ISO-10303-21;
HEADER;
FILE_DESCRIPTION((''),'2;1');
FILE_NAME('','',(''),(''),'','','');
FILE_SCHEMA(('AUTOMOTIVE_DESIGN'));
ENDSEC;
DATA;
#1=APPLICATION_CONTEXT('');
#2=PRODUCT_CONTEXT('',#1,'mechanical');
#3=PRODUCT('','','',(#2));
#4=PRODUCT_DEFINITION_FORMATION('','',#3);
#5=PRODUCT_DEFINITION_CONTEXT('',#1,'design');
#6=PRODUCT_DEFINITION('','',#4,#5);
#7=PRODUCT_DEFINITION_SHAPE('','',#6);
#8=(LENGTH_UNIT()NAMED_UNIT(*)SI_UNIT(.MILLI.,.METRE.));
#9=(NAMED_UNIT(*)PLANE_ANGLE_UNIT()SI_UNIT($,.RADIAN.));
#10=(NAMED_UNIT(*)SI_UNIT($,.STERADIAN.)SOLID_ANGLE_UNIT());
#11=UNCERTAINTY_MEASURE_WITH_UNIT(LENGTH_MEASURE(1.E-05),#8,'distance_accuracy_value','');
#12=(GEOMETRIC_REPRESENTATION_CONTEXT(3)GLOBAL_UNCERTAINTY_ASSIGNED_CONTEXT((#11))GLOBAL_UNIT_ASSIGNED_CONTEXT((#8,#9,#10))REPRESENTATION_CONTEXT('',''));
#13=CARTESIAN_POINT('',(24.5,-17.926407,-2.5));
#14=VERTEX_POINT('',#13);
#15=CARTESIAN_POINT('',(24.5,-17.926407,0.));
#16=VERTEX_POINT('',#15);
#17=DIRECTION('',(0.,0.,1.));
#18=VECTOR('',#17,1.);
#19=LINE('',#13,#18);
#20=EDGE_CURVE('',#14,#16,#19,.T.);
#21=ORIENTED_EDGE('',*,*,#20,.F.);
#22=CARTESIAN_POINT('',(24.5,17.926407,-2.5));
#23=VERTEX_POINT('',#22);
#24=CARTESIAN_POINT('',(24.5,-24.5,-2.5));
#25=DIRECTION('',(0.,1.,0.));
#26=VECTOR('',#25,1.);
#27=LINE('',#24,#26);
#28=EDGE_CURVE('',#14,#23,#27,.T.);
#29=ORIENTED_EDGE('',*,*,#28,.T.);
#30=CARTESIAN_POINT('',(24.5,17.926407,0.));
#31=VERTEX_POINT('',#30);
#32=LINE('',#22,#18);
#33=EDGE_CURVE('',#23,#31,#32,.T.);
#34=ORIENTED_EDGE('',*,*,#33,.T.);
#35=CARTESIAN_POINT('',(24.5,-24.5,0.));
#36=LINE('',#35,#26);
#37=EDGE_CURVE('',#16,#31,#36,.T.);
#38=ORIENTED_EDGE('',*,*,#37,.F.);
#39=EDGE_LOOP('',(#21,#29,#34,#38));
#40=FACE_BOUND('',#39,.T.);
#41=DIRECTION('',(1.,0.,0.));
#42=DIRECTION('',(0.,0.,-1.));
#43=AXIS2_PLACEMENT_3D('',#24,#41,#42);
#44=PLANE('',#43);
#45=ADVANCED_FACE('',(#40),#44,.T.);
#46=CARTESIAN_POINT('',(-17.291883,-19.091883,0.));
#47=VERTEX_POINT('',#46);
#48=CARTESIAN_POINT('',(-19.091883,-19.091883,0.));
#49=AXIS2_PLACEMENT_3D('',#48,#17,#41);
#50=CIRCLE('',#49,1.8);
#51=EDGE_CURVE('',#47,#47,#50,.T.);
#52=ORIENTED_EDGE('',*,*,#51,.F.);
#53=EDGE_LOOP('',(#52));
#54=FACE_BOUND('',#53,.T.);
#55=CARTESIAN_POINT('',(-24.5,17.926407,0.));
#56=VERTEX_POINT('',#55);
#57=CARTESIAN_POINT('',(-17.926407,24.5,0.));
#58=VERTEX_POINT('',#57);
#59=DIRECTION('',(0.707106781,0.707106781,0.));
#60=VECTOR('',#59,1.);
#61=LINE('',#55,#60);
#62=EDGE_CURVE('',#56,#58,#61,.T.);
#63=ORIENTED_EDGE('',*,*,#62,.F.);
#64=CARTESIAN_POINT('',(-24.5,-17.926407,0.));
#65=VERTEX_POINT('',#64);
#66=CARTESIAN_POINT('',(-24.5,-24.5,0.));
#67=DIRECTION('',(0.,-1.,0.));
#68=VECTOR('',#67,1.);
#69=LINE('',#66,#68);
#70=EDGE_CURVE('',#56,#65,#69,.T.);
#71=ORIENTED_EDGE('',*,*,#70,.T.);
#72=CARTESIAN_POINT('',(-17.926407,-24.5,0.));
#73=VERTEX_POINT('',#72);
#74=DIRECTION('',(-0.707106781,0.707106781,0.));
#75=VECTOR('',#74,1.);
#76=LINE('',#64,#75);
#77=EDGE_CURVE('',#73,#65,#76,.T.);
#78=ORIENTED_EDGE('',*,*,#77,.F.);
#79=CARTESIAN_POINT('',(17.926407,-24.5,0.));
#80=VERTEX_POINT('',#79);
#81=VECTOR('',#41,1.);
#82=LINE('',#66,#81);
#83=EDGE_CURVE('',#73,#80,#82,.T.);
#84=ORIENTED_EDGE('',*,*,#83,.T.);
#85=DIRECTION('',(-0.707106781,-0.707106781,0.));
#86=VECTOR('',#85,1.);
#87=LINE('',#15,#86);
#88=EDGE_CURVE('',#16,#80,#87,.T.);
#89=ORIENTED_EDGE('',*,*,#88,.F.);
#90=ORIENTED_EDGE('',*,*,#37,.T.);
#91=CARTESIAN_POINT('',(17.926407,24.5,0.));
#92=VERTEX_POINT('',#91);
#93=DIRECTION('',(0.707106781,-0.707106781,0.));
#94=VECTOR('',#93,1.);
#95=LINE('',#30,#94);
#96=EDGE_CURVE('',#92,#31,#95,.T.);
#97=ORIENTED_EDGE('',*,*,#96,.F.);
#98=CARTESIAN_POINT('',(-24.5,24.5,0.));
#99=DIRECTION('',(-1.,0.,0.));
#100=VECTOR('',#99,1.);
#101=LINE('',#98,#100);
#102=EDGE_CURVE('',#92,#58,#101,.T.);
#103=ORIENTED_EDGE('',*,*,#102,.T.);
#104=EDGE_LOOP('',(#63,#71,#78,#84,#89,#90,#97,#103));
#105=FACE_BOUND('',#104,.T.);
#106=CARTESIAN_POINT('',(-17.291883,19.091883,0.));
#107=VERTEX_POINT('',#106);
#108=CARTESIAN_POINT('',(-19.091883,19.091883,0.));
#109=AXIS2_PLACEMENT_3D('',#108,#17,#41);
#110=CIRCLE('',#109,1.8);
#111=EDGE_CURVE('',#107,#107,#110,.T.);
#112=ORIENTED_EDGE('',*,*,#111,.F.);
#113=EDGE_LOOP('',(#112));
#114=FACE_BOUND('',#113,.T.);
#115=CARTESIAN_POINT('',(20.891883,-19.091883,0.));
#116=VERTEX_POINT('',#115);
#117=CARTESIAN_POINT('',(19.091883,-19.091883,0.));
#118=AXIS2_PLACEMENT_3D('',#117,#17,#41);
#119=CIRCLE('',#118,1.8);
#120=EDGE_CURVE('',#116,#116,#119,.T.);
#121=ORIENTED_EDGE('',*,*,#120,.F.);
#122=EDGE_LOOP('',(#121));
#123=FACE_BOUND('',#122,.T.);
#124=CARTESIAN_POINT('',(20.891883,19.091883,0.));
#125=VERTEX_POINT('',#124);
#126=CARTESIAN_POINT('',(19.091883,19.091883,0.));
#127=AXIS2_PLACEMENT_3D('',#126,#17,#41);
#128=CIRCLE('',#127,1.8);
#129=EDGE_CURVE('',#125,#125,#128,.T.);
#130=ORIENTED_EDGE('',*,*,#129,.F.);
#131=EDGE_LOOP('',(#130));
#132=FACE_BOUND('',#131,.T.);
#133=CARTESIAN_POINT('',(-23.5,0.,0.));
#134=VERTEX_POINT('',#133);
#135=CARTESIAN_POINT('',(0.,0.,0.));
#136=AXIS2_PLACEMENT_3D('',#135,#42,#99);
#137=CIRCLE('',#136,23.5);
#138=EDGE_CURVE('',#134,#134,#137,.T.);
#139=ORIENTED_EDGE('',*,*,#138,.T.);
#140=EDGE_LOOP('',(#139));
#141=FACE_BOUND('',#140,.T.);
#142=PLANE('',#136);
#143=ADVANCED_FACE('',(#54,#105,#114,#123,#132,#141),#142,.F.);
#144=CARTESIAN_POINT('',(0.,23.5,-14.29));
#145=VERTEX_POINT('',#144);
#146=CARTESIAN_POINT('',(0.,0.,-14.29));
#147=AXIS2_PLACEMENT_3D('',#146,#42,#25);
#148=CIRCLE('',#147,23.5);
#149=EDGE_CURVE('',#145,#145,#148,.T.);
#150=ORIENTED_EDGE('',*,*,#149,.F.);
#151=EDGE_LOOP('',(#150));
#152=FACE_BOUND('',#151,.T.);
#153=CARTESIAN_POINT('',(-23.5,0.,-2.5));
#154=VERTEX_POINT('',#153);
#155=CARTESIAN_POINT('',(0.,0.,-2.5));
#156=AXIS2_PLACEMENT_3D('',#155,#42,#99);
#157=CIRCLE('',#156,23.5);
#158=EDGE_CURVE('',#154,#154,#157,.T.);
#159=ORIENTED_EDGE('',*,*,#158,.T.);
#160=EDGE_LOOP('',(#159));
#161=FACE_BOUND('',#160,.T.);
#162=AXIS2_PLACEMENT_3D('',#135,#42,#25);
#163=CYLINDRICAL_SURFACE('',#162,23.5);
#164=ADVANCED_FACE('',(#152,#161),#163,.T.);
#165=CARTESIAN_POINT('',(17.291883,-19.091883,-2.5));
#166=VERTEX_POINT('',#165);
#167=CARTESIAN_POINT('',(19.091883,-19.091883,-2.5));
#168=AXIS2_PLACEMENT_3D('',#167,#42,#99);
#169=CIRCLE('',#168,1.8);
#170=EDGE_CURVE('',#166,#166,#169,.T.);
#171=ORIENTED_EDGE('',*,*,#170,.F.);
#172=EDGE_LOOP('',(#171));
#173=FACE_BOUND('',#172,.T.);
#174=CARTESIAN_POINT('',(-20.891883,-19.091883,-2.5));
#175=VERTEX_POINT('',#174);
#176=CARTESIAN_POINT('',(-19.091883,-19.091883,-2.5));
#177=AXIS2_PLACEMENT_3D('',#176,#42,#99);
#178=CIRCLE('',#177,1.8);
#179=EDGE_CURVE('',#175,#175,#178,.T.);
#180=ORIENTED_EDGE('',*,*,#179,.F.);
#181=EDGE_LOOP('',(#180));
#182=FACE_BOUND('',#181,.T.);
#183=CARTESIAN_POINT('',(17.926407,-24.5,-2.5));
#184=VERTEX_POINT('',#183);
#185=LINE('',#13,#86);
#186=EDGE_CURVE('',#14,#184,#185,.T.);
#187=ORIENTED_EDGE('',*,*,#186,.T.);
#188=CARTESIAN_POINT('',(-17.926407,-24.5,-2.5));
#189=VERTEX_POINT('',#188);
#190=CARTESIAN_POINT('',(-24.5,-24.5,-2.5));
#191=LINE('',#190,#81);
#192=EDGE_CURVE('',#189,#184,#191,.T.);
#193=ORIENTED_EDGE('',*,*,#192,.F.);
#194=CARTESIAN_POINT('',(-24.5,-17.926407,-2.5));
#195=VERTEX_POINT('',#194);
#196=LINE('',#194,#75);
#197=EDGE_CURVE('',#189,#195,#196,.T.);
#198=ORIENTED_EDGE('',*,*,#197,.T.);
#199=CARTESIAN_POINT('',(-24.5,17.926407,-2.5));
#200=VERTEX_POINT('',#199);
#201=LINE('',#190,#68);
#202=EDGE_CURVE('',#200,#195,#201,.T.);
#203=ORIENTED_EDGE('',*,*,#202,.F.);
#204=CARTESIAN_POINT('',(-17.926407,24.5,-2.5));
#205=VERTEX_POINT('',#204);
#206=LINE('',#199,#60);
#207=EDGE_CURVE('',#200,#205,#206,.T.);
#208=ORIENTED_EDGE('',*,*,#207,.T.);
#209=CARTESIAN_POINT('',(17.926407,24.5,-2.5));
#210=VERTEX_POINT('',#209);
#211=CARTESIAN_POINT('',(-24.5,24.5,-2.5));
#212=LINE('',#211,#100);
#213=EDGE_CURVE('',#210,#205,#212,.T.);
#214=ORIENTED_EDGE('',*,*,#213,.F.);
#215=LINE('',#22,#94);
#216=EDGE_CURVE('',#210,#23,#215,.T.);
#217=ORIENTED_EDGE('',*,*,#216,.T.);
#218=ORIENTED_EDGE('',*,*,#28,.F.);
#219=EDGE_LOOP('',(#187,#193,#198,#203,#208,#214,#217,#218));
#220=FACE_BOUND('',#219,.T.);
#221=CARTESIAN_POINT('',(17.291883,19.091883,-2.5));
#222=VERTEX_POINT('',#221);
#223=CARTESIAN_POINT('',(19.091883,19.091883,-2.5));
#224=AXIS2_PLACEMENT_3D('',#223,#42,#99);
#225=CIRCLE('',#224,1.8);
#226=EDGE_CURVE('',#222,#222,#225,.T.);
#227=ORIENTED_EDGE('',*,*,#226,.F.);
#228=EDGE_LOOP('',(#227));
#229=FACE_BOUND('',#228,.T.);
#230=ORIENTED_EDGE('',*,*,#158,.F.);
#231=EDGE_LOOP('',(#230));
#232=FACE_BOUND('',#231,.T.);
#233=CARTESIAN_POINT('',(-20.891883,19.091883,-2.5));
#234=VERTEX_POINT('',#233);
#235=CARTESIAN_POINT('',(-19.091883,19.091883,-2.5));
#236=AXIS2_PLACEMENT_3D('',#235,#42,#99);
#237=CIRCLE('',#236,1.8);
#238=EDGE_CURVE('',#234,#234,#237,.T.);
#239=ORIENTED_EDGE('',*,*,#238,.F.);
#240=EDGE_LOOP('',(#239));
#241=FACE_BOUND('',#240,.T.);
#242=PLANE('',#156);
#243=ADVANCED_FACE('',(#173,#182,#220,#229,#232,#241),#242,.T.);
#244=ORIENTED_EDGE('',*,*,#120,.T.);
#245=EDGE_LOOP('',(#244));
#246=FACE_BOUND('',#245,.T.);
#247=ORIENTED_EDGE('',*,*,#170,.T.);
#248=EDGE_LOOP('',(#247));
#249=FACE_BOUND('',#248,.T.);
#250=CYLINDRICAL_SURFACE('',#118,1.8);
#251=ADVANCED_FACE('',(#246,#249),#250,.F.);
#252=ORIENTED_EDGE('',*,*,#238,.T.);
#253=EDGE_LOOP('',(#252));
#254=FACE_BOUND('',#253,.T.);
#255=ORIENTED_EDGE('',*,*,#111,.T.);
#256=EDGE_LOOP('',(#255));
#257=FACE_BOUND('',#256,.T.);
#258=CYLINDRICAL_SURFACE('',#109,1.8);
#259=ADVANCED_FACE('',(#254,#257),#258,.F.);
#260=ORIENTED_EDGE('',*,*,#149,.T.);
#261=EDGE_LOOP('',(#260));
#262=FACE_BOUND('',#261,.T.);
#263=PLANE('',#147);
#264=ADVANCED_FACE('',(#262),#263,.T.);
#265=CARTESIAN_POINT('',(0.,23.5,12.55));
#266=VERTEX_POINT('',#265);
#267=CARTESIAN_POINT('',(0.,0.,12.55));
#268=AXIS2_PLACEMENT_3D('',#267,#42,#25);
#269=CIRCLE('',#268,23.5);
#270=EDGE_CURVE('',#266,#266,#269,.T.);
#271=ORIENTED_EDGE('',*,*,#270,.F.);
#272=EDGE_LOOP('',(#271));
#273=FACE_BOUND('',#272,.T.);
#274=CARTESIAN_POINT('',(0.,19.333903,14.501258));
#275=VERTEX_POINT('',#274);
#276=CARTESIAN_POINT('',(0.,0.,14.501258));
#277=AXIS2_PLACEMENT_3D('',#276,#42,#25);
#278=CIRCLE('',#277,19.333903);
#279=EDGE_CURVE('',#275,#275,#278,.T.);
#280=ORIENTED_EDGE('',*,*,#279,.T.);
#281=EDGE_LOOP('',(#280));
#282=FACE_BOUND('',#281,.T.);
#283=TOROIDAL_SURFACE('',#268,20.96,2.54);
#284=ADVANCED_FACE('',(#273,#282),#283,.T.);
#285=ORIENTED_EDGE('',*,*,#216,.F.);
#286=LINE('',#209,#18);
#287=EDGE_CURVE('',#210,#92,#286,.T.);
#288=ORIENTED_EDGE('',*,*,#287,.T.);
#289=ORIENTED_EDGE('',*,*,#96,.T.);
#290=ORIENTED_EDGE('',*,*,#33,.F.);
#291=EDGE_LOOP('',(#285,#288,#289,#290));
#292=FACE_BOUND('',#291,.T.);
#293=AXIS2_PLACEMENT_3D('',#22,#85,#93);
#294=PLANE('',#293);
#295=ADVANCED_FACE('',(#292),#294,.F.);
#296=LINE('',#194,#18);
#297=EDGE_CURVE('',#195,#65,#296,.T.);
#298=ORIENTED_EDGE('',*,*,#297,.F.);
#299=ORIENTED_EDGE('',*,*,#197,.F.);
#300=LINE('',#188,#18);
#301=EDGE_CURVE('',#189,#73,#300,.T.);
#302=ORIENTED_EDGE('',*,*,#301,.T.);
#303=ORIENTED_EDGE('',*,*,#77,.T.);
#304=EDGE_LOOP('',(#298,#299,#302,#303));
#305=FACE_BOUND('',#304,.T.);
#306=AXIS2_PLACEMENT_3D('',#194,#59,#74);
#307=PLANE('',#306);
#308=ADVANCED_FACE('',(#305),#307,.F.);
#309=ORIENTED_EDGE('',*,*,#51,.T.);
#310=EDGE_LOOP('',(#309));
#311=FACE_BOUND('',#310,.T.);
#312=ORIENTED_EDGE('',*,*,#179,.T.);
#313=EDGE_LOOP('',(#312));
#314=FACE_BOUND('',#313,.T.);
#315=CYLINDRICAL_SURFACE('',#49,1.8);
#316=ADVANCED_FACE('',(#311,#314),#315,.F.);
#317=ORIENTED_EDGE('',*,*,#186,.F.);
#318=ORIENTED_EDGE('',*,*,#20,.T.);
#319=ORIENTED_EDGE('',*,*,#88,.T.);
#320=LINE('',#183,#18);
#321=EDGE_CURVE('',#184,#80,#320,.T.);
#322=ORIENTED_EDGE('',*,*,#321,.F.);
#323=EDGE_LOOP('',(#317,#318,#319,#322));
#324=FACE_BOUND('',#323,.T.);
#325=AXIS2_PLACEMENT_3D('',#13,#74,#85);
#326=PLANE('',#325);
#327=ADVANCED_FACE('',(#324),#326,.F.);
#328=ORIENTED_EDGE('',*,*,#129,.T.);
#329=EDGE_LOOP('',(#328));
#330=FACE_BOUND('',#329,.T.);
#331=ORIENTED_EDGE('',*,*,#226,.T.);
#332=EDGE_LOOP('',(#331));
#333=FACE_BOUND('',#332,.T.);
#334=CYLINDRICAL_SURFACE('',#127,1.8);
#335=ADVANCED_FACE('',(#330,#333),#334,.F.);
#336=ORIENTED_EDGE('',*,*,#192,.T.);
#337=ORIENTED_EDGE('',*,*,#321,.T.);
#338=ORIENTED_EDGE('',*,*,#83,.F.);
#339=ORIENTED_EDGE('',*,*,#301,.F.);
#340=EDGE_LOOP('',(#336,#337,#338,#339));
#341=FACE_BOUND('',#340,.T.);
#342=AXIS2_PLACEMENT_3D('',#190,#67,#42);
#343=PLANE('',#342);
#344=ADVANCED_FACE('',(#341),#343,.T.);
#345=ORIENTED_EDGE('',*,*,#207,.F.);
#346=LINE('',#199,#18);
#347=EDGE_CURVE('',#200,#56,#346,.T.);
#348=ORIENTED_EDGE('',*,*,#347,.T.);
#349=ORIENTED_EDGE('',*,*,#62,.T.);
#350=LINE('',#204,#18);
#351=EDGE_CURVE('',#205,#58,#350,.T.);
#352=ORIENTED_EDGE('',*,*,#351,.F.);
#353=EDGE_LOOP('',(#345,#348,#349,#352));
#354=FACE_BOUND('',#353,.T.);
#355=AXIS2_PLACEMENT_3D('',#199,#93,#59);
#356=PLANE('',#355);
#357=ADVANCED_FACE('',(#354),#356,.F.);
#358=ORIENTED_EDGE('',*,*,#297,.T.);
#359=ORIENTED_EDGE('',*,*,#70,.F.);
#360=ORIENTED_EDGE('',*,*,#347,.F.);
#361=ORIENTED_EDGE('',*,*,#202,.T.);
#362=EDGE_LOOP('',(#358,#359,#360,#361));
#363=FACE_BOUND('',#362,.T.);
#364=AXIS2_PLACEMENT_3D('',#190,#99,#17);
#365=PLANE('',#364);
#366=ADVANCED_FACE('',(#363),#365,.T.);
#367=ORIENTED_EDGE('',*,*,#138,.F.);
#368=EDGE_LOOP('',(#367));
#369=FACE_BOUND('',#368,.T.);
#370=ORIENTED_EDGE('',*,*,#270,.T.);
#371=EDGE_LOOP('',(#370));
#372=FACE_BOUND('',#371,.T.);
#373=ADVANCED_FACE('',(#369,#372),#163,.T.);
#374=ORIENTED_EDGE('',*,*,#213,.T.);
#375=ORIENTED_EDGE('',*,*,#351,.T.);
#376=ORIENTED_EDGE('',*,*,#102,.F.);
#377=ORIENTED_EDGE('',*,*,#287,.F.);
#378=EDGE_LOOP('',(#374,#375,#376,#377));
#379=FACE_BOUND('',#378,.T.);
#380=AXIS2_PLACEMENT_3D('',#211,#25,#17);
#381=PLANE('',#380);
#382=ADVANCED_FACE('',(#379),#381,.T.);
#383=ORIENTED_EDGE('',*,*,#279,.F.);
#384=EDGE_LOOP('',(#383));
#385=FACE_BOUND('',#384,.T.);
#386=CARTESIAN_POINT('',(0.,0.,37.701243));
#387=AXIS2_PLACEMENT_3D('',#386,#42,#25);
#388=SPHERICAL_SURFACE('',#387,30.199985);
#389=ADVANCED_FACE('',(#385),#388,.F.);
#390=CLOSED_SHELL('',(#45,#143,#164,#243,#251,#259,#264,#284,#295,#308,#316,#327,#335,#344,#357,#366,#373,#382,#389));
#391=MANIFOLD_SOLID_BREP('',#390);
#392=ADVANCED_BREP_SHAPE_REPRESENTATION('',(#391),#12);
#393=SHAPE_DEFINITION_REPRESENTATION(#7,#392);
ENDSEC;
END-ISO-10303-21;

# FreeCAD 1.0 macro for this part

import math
import FreeCAD as App
import Part
import Sketcher

V = App.Vector
Q = App.Units.Quantity

doc = App.newDocument("Part")
params = doc.addObject("Spreadsheet::Sheet", "Params")
for row, (alias, value) in enumerate([
    ("sketch1_width", "49 mm"),
    ("pad1_length", "2.5 mm"),
    ("sketch2_radius", "2.54 mm"),
    ("sketch2_width", "23.5 mm"),
    ("sketch2_height", "26.84 mm"),
    ("revolution_angle", "360 deg"),
    ("pocket1_length", "2.5 mm"),
    ("sketch4_diameter", "3.6 mm"),
    ("hole_diameter", "3.6 mm"),
], start=1):
    params.set(f"A{row}", alias)
    params.set(f"B{row}", "=" + value)
    params.setAlias(f"B{row}", alias)

body = doc.addObject("PartDesign::Body", "Body")

# Sketch on XY plane
sketch1 = body.newObject("Sketcher::SketchObject", "Sketch")
sketch1.AttachmentSupport = (doc.getObject("XY_Plane"), [""])
sketch1.MapMode = "FlatFace"
sketch1.addGeometry([
    Part.LineSegment(V(-24, 24, 0), V(-24, -24, 0)),
    Part.LineSegment(V(-24, -24, 0), V(24, -24, 0)),
    Part.LineSegment(V(24, -24, 0), V(24, 24, 0)),
    Part.LineSegment(V(24, 24, 0), V(-24, 24, 0)),
], False)
sketch1.addConstraint([
    Sketcher.Constraint("Coincident", 0, 2, 1, 1),
    Sketcher.Constraint("Coincident", 1, 2, 2, 1),
    Sketcher.Constraint("Coincident", 2, 2, 3, 1),
    Sketcher.Constraint("Coincident", 3, 2, 0, 1),
    Sketcher.Constraint("Vertical", 0),
    Sketcher.Constraint("Horizontal", 1),
    Sketcher.Constraint("Vertical", 2),
    Sketcher.Constraint("Horizontal", 3),
    Sketcher.Constraint("Symmetric", 0, 2, 2, 2, -1, 1),
    Sketcher.Constraint("Equal", 3, 0),
    Sketcher.Constraint("DistanceX", 1, 1, 1, 2, Q("49 mm")),
])
sketch1.setExpression("Constraints[10]", "Params.sketch1_width")
pad1 = body.newObject("PartDesign::Pad", "Pad")
pad1.Profile = sketch1
pad1.setExpression("Length", "Params.pad1_length")
pad1.Reversed = True

# Sketch on YZ plane
sketch2 = body.newObject("Sketcher::SketchObject", "Sketch001")
sketch2.AttachmentSupport = (doc.getObject("YZ_Plane"), [""])
sketch2.MapMode = "FlatFace"
sketch2.addGeometry([
    Part.LineSegment(V(0, -14.3, 0), V(23.5, -14.3, 0)),  # 0
    Part.LineSegment(V(23.5, -14.3, 0), V(23.5, 12.6, 0)),  # 1
    Part.ArcOfCircle(Part.Circle(V(21, 12.6, 0), V(0, 0, 1), 2.5), math.radians(0), math.radians(130)),  # 2
    Part.ArcOfCircle(Part.Circle(V(0, 37.7, 0), V(0, 0, 1), 30.2), math.radians(-90), math.radians(-50)),  # 3
    Part.LineSegment(V(0, 7.5, 0), V(0, -14.3, 0)),  # 4
], False)
sketch2.addConstraint([
    Sketcher.Constraint("Coincident", 0, 2, 1, 1),
    Sketcher.Constraint("Tangent", 1, 2, 2, 1),
    Sketcher.Constraint("Tangent", 2, 2, 3, 2),
    Sketcher.Constraint("Coincident", 3, 1, 4, 1),
    Sketcher.Constraint("Coincident", 4, 2, 0, 1),
    Sketcher.Constraint("Horizontal", 0),
    Sketcher.Constraint("Vertical", 1),
    Sketcher.Constraint("Vertical", 4),
    Sketcher.Constraint("PointOnObject", 3, 3, -2),
    Sketcher.Constraint("PointOnObject", 3, 1, -2),
    Sketcher.Constraint("Radius", 2, Q("2.54 mm")),
    Sketcher.Constraint("DistanceX", 0, 1, 0, 2, Q("23.5 mm")),
    Sketcher.Constraint("DistanceY", 3, 1, 2, 2, Q("7 mm")),
    Sketcher.Constraint("DistanceY", 1, 1, 1, 2, Q("26.84 mm")),
    Sketcher.Constraint("DistanceY", -1, 1, 2, 3, Q("12.55 mm")),
])
sketch2.setExpression("Constraints[10]", "Params.sketch2_radius")
sketch2.setExpression("Constraints[11]", "Params.sketch2_width")
sketch2.setExpression("Constraints[13]", "Params.sketch2_height")
revolution = body.newObject("PartDesign::Revolution", "Revolution")
revolution.Profile = sketch2
revolution.ReferenceAxis = (sketch2, ["V_Axis"])
revolution.setExpression("Angle", "Params.revolution_angle")

# Sketch on XY plane
sketch3 = body.newObject("Sketcher::SketchObject", "Sketch002")
sketch3.AttachmentSupport = (doc.getObject("XY_Plane"), [""])
sketch3.MapMode = "FlatFace"
sketch3.addGeometry([
    Part.LineSegment(V(-24, 18, 0), V(-18, 24, 0)),  # 0
    Part.LineSegment(V(-18, 24, 0), V(-24, 24, 0)),  # 1
    Part.LineSegment(V(-24, 24, 0), V(-24, 18, 0)),  # 2
    Part.LineSegment(V(18, 24, 0), V(24, 18, 0)),  # 3
    Part.LineSegment(V(24, 18, 0), V(24, 24, 0)),  # 4
    Part.LineSegment(V(24, 24, 0), V(18, 24, 0)),  # 5
    Part.LineSegment(V(-24, -18, 0), V(-24, -24, 0)),  # 6
    Part.LineSegment(V(-24, -24, 0), V(-18, -24, 0)),  # 7
    Part.LineSegment(V(-18, -24, 0), V(-24, -18, 0)),  # 8
    Part.LineSegment(V(24, -18, 0), V(18, -24, 0)),  # 9
    Part.LineSegment(V(18, -24, 0), V(24, -24, 0)),  # 10
    Part.LineSegment(V(24, -24, 0), V(24, -18, 0)),  # 11
], False)
sketch3.addConstraint([
    Sketcher.Constraint("Coincident", 0, 2, 1, 1),
    Sketcher.Constraint("Coincident", 1, 2, 2, 1),
    Sketcher.Constraint("Coincident", 2, 2, 0, 1),
    Sketcher.Constraint("Coincident", 3, 2, 4, 1),
    Sketcher.Constraint("Coincident", 4, 2, 5, 1),
    Sketcher.Constraint("Coincident", 5, 2, 3, 1),
    Sketcher.Constraint("Coincident", 6, 2, 7, 1),
    Sketcher.Constraint("Coincident", 7, 2, 8, 1),
    Sketcher.Constraint("Coincident", 8, 2, 6, 1),
    Sketcher.Constraint("Coincident", 9, 2, 10, 1),
    Sketcher.Constraint("Coincident", 10, 2, 11, 1),
    Sketcher.Constraint("Coincident", 11, 2, 9, 1),
    Sketcher.Constraint("Horizontal", 1),
    Sketcher.Constraint("Vertical", 2),
    Sketcher.Constraint("Vertical", 4),
    Sketcher.Constraint("Horizontal", 5),
    Sketcher.Constraint("Vertical", 6),
    Sketcher.Constraint("Horizontal", 7),
    Sketcher.Constraint("Horizontal", 10),
    Sketcher.Constraint("Vertical", 11),
    Sketcher.Constraint("Symmetric", 4, 2, 6, 2, -1, 1),
    Sketcher.Constraint("Symmetric", 0, 2, 9, 2, -1, 1),
    Sketcher.Constraint("Symmetric", 2, 2, 11, 2, -1, 1),
    Sketcher.Constraint("Symmetric", 2, 2, 3, 2, -2),
    Sketcher.Constraint("Symmetric", 0, 2, 5, 2, -2),
    Sketcher.Constraint("Perpendicular", 0, 3),
    Sketcher.Constraint("Parallel", 3, 8),
    Sketcher.Constraint("Horizontal", 8, 2, 11, 2),
    Sketcher.Constraint("DistanceX", 2, 2, 3, 2, Q("49 mm")),
    Sketcher.Constraint("DistanceY", 6, 2, 1, 2, Q("49 mm")),
    Sketcher.Constraint("DistanceX", 1, 2, 1, 1, Q("6.573593 mm")),
])
pocket1 = body.newObject("PartDesign::Pocket", "Pocket")
pocket1.Profile = sketch3
pocket1.setExpression("Length", "Params.pocket1_length")

# Sketch on XY plane
sketch4 = body.newObject("Sketcher::SketchObject", "Sketch003")
sketch4.AttachmentSupport = (doc.getObject("XY_Plane"), [""])
sketch4.MapMode = "FlatFace"
sketch4.addGeometry([
    Part.Circle(V(-19.1, 19.1, 0), V(0, 0, 1), 1.8),
    Part.Circle(V(19.1, -19.1, 0), V(0, 0, 1), 1.8),
    Part.Circle(V(-19.1, -19.1, 0), V(0, 0, 1), 1.8),
    Part.Circle(V(19.1, 19.1, 0), V(0, 0, 1), 1.8),
], False)
sketch4.addConstraint([
    Sketcher.Constraint("Equal", 0, 1),
    Sketcher.Constraint("Equal", 1, 2),
    Sketcher.Constraint("Equal", 2, 3),
    Sketcher.Constraint("Symmetric", 0, 3, 1, 3, -1, 1),
    Sketcher.Constraint("Symmetric", 2, 3, 3, 3, -1, 1),
    Sketcher.Constraint("Symmetric", 1, 3, 2, 3, -2),
    Sketcher.Constraint("Diameter", 0, Q("3.6 mm")),
    Sketcher.Constraint("DistanceX", 0, 3, -1, 1, Q("19.091883 mm")),
    Sketcher.Constraint("DistanceY", -1, 1, 0, 3, Q("19.091883 mm")),
])
sketch4.setExpression("Constraints[6]", "Params.sketch4_diameter")
doc.recompute()
hole = body.newObject("PartDesign::Hole", "Hole")
hole.Profile = sketch4
hole.ThreadType = "None"
hole.setExpression("Diameter", "Params.hole_diameter")
hole.DepthType = "ThroughAll"

doc.recompute()
